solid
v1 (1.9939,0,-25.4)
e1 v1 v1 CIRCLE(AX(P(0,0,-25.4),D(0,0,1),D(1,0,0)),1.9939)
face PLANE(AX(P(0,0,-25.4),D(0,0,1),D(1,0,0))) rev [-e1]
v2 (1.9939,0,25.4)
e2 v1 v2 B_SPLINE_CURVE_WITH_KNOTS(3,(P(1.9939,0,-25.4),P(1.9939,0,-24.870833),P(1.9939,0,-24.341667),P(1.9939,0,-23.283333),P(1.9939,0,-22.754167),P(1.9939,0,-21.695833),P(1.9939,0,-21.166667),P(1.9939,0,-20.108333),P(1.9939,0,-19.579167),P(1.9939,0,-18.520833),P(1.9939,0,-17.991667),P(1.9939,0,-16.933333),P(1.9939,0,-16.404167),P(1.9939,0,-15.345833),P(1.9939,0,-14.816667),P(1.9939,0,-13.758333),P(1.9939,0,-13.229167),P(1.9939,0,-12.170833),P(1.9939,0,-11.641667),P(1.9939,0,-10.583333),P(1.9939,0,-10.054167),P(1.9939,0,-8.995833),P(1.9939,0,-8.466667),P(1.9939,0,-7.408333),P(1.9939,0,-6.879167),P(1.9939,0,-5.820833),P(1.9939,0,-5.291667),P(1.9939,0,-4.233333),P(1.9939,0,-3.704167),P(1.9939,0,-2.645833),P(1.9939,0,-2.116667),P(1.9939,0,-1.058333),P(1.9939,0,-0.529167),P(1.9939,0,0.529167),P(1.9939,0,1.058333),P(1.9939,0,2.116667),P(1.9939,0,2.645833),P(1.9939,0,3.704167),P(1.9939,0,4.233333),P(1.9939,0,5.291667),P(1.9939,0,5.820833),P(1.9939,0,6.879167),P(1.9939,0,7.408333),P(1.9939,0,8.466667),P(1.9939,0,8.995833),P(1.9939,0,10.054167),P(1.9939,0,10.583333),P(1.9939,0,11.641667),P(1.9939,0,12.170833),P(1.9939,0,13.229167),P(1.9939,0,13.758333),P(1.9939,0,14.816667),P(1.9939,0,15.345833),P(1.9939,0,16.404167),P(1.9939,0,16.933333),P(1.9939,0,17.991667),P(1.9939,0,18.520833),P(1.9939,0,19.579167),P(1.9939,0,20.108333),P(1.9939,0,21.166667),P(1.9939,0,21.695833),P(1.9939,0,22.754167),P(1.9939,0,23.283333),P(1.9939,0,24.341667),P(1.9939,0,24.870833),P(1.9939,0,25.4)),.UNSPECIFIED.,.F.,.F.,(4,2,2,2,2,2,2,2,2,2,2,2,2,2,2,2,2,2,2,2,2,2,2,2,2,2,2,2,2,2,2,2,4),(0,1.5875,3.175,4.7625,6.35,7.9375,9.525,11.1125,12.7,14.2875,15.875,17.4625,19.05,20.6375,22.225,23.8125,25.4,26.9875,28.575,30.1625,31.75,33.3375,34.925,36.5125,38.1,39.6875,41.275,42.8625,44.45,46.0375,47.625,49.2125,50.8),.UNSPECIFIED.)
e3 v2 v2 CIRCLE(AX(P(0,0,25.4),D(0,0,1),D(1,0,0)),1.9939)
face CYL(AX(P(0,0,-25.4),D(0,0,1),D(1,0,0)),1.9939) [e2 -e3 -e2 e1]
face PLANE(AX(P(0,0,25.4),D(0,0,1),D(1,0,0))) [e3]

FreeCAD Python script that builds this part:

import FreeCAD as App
import Part
import Sketcher

V = App.Vector
Q = App.Units.Quantity

doc = App.newDocument("Part")
params = doc.addObject("Spreadsheet::Sheet", "Params")
for row, (alias, value) in enumerate([
    ("sketch1_diameter", "0.157 in"),
    ("pad1_length", "1 in"),
    ("pad1_length2", "1 in"),
], start=1):
    params.set(f"A{row}", alias)
    params.set(f"B{row}", "=" + value)
    params.setAlias(f"B{row}", alias)

body = doc.addObject("PartDesign::Body", "Body")

# Sketch on XY plane
sketch1 = body.newObject("Sketcher::SketchObject", "Sketch")
sketch1.AttachmentSupport = (doc.getObject("XY_Plane"), [""])
sketch1.MapMode = "FlatFace"
sketch1.addGeometry(Part.Circle(V(0, 0, 0), V(0, 0, 1), 2), False)
sketch1.addConstraint([
    Sketcher.Constraint("Coincident", 0, 3, -1, 1),
    Sketcher.Constraint("Diameter", 0, Q("0.157 in")),
])
sketch1.setExpression("Constraints[1]", "Params.sketch1_diameter")
pad1 = body.newObject("PartDesign::Pad", "Pad")
pad1.Profile = sketch1
pad1.Type = "TwoLengths"
pad1.setExpression("Length", "Params.pad1_length")
pad1.setExpression("Length2", "Params.pad1_length2")

doc.recompute()
